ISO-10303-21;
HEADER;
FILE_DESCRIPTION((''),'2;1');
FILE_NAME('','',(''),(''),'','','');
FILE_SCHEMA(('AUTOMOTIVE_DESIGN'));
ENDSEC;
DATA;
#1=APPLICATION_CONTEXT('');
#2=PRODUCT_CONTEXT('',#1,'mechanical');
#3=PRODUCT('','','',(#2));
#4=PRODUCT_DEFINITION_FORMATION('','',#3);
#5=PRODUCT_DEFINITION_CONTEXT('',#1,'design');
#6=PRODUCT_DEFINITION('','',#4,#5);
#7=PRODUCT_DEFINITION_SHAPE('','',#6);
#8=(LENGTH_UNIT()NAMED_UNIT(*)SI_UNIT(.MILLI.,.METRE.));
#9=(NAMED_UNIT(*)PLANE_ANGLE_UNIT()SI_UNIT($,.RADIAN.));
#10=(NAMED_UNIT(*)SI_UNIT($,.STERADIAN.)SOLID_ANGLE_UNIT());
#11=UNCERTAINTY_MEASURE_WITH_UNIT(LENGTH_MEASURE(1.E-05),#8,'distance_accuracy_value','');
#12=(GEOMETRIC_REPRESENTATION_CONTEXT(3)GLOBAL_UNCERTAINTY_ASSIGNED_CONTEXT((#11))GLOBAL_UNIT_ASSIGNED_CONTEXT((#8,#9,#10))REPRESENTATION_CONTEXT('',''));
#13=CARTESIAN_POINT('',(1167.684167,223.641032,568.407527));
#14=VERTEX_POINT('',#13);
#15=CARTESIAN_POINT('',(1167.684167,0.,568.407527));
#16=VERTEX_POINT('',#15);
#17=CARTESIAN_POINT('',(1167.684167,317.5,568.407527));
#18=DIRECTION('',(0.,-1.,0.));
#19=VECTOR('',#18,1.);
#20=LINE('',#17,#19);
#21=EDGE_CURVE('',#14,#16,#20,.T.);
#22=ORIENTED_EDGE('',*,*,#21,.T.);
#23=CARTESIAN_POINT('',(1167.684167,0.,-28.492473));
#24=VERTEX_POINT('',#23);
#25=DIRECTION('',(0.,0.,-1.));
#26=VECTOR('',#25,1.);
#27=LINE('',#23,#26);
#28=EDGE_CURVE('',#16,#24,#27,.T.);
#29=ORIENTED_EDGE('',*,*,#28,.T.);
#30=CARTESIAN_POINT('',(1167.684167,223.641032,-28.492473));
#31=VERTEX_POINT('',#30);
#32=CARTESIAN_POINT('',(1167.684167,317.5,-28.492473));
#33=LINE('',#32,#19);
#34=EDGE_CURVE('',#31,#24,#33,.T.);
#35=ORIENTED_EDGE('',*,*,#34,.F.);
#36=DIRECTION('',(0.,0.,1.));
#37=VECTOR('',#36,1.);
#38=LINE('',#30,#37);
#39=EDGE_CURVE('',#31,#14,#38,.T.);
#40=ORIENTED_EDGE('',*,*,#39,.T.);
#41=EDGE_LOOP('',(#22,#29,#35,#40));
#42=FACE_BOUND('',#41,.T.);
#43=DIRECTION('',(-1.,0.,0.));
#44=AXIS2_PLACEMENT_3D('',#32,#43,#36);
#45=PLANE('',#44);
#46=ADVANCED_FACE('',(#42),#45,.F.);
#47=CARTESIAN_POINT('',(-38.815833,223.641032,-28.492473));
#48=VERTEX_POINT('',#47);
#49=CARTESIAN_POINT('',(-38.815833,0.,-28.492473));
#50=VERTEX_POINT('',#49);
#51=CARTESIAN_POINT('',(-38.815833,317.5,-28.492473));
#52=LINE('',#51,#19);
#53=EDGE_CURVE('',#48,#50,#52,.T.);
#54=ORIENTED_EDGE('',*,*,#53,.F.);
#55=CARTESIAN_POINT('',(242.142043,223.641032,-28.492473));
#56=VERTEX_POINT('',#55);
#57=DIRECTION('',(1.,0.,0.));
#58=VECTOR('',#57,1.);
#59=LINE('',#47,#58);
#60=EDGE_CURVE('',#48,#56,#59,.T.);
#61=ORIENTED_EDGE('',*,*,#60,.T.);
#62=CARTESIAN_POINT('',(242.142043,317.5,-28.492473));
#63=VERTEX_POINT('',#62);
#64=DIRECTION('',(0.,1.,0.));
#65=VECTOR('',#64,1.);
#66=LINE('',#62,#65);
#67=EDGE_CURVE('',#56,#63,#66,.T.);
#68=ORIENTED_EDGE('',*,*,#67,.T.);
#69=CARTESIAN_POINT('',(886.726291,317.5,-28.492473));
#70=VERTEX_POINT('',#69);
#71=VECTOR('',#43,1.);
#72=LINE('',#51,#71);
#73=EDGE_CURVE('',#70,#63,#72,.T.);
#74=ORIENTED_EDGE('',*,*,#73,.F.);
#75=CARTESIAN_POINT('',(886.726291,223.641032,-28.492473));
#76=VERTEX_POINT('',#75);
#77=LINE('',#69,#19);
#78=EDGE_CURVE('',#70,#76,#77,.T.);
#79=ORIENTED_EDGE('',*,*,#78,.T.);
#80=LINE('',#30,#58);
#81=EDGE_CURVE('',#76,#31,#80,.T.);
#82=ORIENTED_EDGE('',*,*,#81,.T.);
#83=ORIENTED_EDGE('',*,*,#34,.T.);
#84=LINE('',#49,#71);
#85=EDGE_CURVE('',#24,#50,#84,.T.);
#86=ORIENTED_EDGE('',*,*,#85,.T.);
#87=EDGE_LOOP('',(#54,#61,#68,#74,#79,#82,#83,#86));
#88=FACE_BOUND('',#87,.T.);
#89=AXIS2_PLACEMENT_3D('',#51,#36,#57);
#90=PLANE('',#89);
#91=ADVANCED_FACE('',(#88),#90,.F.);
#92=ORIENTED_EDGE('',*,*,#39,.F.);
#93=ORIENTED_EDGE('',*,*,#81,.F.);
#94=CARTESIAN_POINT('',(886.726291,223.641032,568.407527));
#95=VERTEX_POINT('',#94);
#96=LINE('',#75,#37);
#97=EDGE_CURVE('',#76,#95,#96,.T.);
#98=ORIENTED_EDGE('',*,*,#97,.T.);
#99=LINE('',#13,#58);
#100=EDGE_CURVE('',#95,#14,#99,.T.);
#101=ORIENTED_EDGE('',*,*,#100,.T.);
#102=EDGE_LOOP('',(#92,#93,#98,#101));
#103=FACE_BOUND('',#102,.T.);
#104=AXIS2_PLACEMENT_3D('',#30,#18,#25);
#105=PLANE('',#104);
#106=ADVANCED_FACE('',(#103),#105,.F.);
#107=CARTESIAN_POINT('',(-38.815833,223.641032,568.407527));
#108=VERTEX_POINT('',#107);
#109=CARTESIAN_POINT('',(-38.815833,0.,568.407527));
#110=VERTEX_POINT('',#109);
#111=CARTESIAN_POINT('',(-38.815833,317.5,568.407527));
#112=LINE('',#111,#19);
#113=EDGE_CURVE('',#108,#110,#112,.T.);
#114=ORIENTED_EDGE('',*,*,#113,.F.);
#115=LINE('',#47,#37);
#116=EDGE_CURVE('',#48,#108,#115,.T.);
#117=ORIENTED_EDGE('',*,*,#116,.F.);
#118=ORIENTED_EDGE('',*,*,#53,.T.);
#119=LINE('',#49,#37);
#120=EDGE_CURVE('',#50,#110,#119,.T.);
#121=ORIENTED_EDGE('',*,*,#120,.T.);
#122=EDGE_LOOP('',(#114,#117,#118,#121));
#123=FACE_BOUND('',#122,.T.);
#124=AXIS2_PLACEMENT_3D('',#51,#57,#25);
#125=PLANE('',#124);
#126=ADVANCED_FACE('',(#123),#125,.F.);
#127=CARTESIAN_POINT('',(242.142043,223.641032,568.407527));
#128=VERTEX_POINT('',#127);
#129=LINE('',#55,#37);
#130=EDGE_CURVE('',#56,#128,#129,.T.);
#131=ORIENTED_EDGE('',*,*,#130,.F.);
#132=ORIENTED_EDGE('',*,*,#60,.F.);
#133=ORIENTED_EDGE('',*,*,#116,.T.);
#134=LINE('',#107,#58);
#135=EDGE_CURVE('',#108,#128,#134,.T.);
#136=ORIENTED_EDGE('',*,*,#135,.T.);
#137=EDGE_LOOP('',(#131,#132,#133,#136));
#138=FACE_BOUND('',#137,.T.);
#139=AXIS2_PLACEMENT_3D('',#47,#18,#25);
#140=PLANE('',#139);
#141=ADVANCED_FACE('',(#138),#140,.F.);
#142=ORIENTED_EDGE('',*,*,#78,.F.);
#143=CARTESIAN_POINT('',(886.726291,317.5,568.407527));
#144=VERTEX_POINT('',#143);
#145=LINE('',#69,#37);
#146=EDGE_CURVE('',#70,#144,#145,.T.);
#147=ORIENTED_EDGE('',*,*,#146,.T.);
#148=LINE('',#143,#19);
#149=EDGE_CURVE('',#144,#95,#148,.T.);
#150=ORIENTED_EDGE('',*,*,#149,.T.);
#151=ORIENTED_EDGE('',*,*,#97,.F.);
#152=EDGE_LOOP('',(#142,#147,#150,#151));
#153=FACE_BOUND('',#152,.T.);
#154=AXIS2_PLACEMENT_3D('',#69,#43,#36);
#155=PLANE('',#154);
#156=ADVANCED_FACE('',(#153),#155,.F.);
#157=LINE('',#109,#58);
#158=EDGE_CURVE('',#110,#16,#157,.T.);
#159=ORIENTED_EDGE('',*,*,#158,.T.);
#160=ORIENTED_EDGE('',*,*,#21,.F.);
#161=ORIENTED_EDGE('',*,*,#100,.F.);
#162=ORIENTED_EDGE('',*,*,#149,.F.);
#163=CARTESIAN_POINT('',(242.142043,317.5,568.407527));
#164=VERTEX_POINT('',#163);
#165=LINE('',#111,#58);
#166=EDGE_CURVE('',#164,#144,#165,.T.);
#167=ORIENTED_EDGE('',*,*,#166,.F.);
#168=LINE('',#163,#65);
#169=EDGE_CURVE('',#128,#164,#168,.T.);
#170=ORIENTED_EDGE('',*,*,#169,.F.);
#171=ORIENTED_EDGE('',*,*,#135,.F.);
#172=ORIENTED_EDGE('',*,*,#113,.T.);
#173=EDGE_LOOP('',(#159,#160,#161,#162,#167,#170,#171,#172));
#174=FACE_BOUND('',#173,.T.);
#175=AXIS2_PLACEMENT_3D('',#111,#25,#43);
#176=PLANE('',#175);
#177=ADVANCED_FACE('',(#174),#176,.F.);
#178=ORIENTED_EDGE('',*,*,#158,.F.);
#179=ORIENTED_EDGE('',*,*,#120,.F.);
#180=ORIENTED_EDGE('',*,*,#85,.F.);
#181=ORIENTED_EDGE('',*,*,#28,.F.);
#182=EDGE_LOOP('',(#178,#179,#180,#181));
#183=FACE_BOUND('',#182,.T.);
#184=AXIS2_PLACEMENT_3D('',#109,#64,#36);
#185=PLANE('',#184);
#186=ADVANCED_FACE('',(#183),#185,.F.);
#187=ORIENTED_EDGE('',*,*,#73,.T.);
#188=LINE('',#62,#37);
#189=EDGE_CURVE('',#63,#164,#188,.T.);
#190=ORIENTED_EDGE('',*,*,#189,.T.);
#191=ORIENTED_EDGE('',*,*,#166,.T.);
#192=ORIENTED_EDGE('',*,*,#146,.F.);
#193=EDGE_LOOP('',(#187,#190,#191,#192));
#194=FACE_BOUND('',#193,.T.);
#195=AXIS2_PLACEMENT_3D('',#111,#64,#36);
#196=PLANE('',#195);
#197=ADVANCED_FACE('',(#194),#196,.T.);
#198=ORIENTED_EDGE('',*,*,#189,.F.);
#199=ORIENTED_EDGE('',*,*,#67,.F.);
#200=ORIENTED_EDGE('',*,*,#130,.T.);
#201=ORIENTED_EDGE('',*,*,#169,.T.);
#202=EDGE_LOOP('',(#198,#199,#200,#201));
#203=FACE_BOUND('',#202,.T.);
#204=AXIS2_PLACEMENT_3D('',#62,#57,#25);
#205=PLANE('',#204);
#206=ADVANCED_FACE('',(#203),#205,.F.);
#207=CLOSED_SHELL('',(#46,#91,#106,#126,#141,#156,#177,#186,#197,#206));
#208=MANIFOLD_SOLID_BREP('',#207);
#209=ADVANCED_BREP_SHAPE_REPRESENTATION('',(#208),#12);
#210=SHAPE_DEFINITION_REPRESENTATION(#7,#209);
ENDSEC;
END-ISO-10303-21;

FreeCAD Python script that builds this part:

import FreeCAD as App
import Part
import Sketcher

V = App.Vector
Q = App.Units.Quantity

doc = App.newDocument("Part")
params = doc.addObject("Spreadsheet::Sheet", "Params")
for row, (alias, value) in enumerate([
    ("sketch1_width", "47.5 in"),
    ("sketch1_height", "23.5 in"),
    ("pad1_length", "12.5 in"),
], start=1):
    params.set(f"A{row}", alias)
    params.set(f"B{row}", "=" + value)
    params.setAlias(f"B{row}", alias)

body = doc.addObject("PartDesign::Body", "Body")

sketch1 = body.newObject("Sketcher::SketchObject", "Sketch")
sketch1.AttachmentSupport = (doc.getObject("XZ_Plane"), [""])
sketch1.MapMode = "FlatFace"
sketch1.addGeometry([
    Part.LineSegment(V(-39, -28, 0), V(-39, 568, 0)),
    Part.LineSegment(V(-39, 568, 0), V(1168, 568, 0)),
    Part.LineSegment(V(1168, 568, 0), V(1168, -28, 0)),
    Part.LineSegment(V(1168, -28, 0), V(-39, -28, 0)),
], False)
sketch1.addConstraint([
    Sketcher.Constraint("Coincident", 0, 2, 1, 1),
    Sketcher.Constraint("Coincident", 1, 2, 2, 1),
    Sketcher.Constraint("Coincident", 2, 2, 3, 1),
    Sketcher.Constraint("Coincident", 3, 2, 0, 1),
    Sketcher.Constraint("Vertical", 0),
    Sketcher.Constraint("Horizontal", 1),
    Sketcher.Constraint("Vertical", 2),
    Sketcher.Constraint("Horizontal", 3),
    Sketcher.Constraint("DistanceX", 1, 1, 1, 2, Q("47.5 in")),
    Sketcher.Constraint("DistanceY", 0, 1, 0, 2, Q("23.5 in")),
    Sketcher.Constraint("DistanceX", 0, 2, -1, 1, 38.815833),
    Sketcher.Constraint("DistanceY", -1, 1, 0, 2, 568.407527),
])
sketch1.setExpression("Constraints[8]", "Params.sketch1_width")
sketch1.setExpression("Constraints[9]", "Params.sketch1_height")
pad1 = body.newObject("PartDesign::Pad", "Pad")
pad1.Profile = sketch1
pad1.setExpression("Length", "Params.pad1_length")
pad1.Reversed = True

sketch2 = body.newObject("Sketcher::SketchObject", "Sketch001")
sketch2.AttachmentSupport = (doc.getObject("XY_Plane"), [""])
sketch2.MapMode = "FlatFace"
sketch2.AttachmentOffset = App.Placement(V(0, 0, 568.407527), App.Rotation())
sketch2.addGeometry([
    Part.LineSegment(V(887, 318, 0), V(887, 224, 0)),
    Part.LineSegment(V(887, 224, 0), V(1168, 224, 0)),
    Part.LineSegment(V(1168, 224, 0), V(1168, 318, 0)),
    Part.LineSegment(V(1168, 318, 0), V(887, 318, 0)),
    Part.LineSegment(V(-39, 318, 0), V(-39, 224, 0)),
    Part.LineSegment(V(-39, 224, 0), V(242, 224, 0)),
    Part.LineSegment(V(242, 224, 0), V(242, 318, 0)),
    Part.LineSegment(V(242, 318, 0), V(-39, 318, 0)),
], False)
sketch2.addConstraint([
    Sketcher.Constraint("Coincident", 0, 2, 1, 1),
    Sketcher.Constraint("Coincident", 1, 2, 2, 1),
    Sketcher.Constraint("Coincident", 2, 2, 3, 1),
    Sketcher.Constraint("Coincident", 3, 2, 0, 1),
    Sketcher.Constraint("Coincident", 4, 2, 5, 1),
    Sketcher.Constraint("Coincident", 5, 2, 6, 1),
    Sketcher.Constraint("Coincident", 6, 2, 7, 1),
    Sketcher.Constraint("Coincident", 7, 2, 4, 1),
    Sketcher.Constraint("Vertical", 0),
    Sketcher.Constraint("Horizontal", 1),
    Sketcher.Constraint("Vertical", 2),
    Sketcher.Constraint("Horizontal", 3),
    Sketcher.Constraint("Vertical", 4),
    Sketcher.Constraint("Horizontal", 5),
    Sketcher.Constraint("Vertical", 6),
    Sketcher.Constraint("Horizontal", 7),
    Sketcher.Constraint("Horizontal", 1, 2, 4, 2),
    Sketcher.Constraint("Horizontal", 3, 2, 6, 2),
    Sketcher.Constraint("Equal", 3, 5),
    Sketcher.Constraint("DistanceY", -1, 1, 2, 2, Q("12.5 in")),
    Sketcher.Constraint("DistanceX", 4, 2, 1, 2, Q("47.5 in")),
    Sketcher.Constraint("DistanceY", 0, 2, 0, 1, 93.858968),
    Sketcher.Constraint("DistanceX", 1, 1, 1, 2, 280.957876),
    Sketcher.Constraint("DistanceX", -1, 1, 0, 2, 886.726291),
])
pocket1 = body.newObject("PartDesign::Pocket", "Pocket")
pocket1.Profile = sketch2
pocket1.Type = "ThroughAll"

doc.recompute()
